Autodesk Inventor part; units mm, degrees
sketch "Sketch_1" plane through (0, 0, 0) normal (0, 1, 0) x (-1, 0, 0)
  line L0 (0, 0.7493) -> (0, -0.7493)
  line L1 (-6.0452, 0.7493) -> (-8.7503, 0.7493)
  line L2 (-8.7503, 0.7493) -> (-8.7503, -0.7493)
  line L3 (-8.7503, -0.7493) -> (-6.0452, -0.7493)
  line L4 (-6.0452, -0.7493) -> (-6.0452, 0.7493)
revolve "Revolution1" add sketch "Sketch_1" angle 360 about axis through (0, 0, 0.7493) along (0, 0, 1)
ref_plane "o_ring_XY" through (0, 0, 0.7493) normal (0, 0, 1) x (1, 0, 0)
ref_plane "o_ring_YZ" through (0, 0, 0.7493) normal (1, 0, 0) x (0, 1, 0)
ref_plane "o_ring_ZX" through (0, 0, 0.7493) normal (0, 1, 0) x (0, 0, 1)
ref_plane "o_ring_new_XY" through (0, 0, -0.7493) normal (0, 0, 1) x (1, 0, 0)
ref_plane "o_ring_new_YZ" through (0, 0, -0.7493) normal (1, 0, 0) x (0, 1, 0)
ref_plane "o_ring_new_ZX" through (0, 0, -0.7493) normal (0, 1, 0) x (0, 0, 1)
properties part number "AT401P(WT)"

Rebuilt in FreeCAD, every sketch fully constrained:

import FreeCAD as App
import Part
import Sketcher

V = App.Vector
Q = App.Units.Quantity

doc = App.newDocument("Part")
body = doc.addObject("PartDesign::Body", "Body")

# Sketch on XZ plane
sketch1 = body.newObject("Sketcher::SketchObject", "Sketch")
sketch1.AttachmentSupport = (doc.getObject("XZ_Plane"), [""])
sketch1.MapMode = "FlatFace"
sketch1.addGeometry(Part.LineSegment(V(6.0452, -0.7493, 0), V(6.0452, 0.7493, 0)), False)
sketch1.addGeometry(Part.LineSegment(V(6.0452, 0.7493, 0), V(8.7503, 0.7493, 0)), False)
sketch1.addGeometry(Part.LineSegment(V(8.7503, 0.7493, 0), V(8.7503, -0.7493, 0)), False)
sketch1.addGeometry(Part.LineSegment(V(8.7503, -0.7493, 0), V(6.0452, -0.7493, 0)), False)
sketch1.addConstraint(Sketcher.Constraint("Coincident", 0, 2, 1, 1))
sketch1.addConstraint(Sketcher.Constraint("Coincident", 1, 2, 2, 1))
sketch1.addConstraint(Sketcher.Constraint("Coincident", 2, 2, 3, 1))
sketch1.addConstraint(Sketcher.Constraint("Coincident", 3, 2, 0, 1))
sketch1.addConstraint(Sketcher.Constraint("Vertical", 0))
sketch1.addConstraint(Sketcher.Constraint("Horizontal", 1))
sketch1.addConstraint(Sketcher.Constraint("Vertical", 2))
sketch1.addConstraint(Sketcher.Constraint("Horizontal", 3))
sketch1.addConstraint(Sketcher.Constraint("DistanceY", 0, 1, 0, 2, Q("0.059 in")))
sketch1.addConstraint(Sketcher.Constraint("DistanceX", 1, 1, 1, 2, Q("0.1065 in")))
sketch1.addConstraint(Sketcher.Constraint("DistanceX", -1, 1, 0, 2, Q("0.238 in")))
sketch1.addConstraint(Sketcher.Constraint("DistanceY", -1, 1, 0, 2, Q("0.0295 in")))
revolution = body.newObject("PartDesign::Revolution", "Revolution")
revolution.Profile = sketch1
revolution.ReferenceAxis = (sketch1, ["V_Axis"])
revolution.Angle = 360

doc.recompute()
